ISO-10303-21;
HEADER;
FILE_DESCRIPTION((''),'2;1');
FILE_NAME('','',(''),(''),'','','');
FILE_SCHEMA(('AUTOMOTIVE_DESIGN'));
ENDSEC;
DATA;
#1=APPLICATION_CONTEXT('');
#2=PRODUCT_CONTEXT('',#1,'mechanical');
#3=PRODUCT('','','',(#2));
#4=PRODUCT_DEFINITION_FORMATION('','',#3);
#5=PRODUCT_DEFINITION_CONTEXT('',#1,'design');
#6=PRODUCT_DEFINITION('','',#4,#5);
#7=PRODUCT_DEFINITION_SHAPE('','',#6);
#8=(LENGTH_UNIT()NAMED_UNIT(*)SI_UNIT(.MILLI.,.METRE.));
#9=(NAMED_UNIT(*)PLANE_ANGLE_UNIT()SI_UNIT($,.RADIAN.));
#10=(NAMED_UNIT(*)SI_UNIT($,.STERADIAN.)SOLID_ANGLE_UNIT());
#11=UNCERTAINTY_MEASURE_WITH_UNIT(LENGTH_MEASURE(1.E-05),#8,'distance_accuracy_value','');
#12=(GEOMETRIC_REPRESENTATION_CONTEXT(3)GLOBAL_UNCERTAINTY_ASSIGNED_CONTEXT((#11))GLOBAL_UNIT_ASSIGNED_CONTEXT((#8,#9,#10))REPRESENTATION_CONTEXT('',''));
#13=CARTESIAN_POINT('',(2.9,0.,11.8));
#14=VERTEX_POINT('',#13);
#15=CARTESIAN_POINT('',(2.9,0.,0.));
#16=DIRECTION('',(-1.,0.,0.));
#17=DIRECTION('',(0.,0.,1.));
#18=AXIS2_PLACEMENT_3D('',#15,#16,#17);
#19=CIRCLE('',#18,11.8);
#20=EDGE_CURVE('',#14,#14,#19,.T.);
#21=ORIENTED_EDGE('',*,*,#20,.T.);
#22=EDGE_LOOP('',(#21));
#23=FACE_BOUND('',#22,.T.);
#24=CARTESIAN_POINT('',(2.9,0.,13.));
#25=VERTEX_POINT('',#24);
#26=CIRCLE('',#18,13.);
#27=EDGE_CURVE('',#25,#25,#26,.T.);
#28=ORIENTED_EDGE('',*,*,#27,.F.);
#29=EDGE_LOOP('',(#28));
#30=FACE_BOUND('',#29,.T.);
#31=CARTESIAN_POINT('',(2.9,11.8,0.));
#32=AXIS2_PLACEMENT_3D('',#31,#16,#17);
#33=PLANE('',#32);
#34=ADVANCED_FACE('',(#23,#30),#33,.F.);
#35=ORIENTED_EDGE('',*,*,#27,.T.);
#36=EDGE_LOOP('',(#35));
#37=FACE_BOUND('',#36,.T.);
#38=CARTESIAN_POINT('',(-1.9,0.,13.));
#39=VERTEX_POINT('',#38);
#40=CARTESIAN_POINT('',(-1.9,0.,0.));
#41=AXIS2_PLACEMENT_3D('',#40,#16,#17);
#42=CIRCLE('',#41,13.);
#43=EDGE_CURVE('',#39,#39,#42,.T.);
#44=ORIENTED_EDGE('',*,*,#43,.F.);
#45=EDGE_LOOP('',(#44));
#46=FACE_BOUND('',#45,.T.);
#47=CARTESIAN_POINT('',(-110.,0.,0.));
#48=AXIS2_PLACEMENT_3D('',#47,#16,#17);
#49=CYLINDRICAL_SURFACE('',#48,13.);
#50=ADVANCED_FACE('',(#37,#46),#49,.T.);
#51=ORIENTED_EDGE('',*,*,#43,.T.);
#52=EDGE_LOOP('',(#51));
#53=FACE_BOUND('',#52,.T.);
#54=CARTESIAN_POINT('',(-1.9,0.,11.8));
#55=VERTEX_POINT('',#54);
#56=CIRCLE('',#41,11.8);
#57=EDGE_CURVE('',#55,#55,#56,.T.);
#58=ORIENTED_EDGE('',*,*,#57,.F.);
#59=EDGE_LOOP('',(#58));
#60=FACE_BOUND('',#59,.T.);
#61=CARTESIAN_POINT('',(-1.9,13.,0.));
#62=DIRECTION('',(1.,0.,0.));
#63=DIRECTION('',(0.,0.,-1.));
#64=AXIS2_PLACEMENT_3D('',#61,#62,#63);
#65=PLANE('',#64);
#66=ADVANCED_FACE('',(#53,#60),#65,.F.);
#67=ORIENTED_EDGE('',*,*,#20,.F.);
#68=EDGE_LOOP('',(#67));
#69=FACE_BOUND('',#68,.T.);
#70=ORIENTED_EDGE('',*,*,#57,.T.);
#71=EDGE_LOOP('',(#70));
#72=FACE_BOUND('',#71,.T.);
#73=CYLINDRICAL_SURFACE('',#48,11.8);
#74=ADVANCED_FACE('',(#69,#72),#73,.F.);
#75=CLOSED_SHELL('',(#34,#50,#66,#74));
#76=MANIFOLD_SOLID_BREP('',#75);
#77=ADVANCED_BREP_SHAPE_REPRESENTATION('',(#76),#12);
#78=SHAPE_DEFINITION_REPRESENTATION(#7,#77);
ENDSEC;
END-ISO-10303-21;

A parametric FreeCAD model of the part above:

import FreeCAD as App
import Part
import Sketcher
from FreeCAD import Vector

doc = App.newDocument("Part")
body = doc.addObject("PartDesign::Body", "Body")

# Sketch on XY plane
sketch1 = body.newObject("Sketcher::SketchObject", "Sketch")
sketch1.AttachmentSupport = (doc.getObject("XY_Plane"), [""])
sketch1.MapMode = "FlatFace"
sketch1.addGeometry([
    Part.LineSegment(Vector(-1.9, 13, 0), Vector(-1.9, 11.8, 0)),
    Part.LineSegment(Vector(-1.9, 11.8, 0), Vector(2.9, 11.8, 0)),
    Part.LineSegment(Vector(2.9, 11.8, 0), Vector(2.9, 13, 0)),
    Part.LineSegment(Vector(2.9, 13, 0), Vector(-1.9, 13, 0)),
], False)
sketch1.addConstraint([
    Sketcher.Constraint("Coincident", 0, 2, 1, 1),
    Sketcher.Constraint("Coincident", 1, 2, 2, 1),
    Sketcher.Constraint("Coincident", 2, 2, 3, 1),
    Sketcher.Constraint("Coincident", 3, 2, 0, 1),
    Sketcher.Constraint("Vertical", 0),
    Sketcher.Constraint("Horizontal", 1),
    Sketcher.Constraint("Vertical", 2),
    Sketcher.Constraint("Horizontal", 3),
    Sketcher.Constraint("DistanceX", 1, 1, 1, 2, 4.8),
    Sketcher.Constraint("DistanceY", 0, 2, 0, 1, 1.2),
    Sketcher.Constraint("DistanceY", -1, 1, 2, 2, 13.0),
    Sketcher.Constraint("DistanceX", 0, 2, -1, 1, 1.9),
])
revolution = body.newObject("PartDesign::Revolution", "Revolution")
revolution.Profile = sketch1
revolution.ReferenceAxis = (sketch1, ["H_Axis"])
revolution.Angle = 360

doc.recompute()
